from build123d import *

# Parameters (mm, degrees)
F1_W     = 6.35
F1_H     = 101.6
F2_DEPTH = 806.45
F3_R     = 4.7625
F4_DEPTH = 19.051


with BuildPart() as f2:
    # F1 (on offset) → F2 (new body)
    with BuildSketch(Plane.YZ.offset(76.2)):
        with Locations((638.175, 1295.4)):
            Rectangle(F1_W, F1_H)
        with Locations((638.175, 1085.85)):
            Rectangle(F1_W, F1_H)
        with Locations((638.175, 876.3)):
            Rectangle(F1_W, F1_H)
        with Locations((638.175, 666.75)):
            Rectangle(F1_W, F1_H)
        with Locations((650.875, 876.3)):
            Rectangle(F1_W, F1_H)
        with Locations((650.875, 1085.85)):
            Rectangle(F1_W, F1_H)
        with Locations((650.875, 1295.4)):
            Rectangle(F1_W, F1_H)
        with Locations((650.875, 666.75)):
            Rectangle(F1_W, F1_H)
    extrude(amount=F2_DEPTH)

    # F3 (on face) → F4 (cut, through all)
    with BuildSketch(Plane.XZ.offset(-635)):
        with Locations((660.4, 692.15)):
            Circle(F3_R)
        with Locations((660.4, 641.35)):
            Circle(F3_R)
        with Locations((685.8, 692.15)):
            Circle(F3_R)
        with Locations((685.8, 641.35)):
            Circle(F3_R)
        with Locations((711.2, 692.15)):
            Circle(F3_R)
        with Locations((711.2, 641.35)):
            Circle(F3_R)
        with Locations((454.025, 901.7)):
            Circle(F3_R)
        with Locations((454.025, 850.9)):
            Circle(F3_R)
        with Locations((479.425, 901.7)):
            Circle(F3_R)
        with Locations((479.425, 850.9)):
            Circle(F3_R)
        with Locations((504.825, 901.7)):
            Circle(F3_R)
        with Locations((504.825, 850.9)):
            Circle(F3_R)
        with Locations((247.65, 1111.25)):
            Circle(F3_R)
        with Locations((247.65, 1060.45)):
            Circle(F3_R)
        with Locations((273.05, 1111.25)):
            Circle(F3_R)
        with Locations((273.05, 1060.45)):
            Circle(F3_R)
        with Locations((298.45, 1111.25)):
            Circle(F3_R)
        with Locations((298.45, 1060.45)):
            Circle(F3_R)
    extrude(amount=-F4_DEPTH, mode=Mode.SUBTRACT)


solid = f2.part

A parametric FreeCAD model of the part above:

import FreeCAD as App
import Part
import Sketcher
from FreeCAD import Vector
Q = App.Units.Quantity

doc = App.newDocument("Part")
body = doc.addObject("PartDesign::Body", "Body")
body.AllowCompound = True

# Sketch on YZ plane
sketch1 = body.newObject("Sketcher::SketchObject", "Sketch")
sketch1.AttachmentSupport = (doc.getObject("YZ_Plane"), [""])
sketch1.MapMode = "FlatFace"
sketch1.AttachmentOffset = App.Placement(Vector(0, 0, 3 * 25.4), App.Rotation())
sketch1.addGeometry([
    Part.LineSegment(Vector(635, 1346.2, 0), Vector(635, 1244.6, 0)),  # 0
    Part.LineSegment(Vector(635, 1244.6, 0), Vector(641.35, 1244.6, 0)),  # 1
    Part.LineSegment(Vector(641.35, 1244.6, 0), Vector(641.35, 1346.2, 0)),  # 2
    Part.LineSegment(Vector(641.35, 1346.2, 0), Vector(635, 1346.2, 0)),  # 3
    Part.LineSegment(Vector(635, 1136.65, 0), Vector(635, 1035.05, 0)),  # 4
    Part.LineSegment(Vector(635, 1035.05, 0), Vector(641.35, 1035.05, 0)),  # 5
    Part.LineSegment(Vector(641.35, 1035.05, 0), Vector(641.35, 1136.65, 0)),  # 6
    Part.LineSegment(Vector(641.35, 1136.65, 0), Vector(635, 1136.65, 0)),  # 7
    Part.LineSegment(Vector(635, 927.1, 0), Vector(635, 825.5, 0)),  # 8
    Part.LineSegment(Vector(635, 825.5, 0), Vector(641.35, 825.5, 0)),  # 9
    Part.LineSegment(Vector(641.35, 825.5, 0), Vector(641.35, 927.1, 0)),  # 10
    Part.LineSegment(Vector(641.35, 927.1, 0), Vector(635, 927.1, 0)),  # 11
    Part.LineSegment(Vector(635, 717.55, 0), Vector(635, 615.95, 0)),  # 12
    Part.LineSegment(Vector(635, 615.95, 0), Vector(641.35, 615.95, 0)),  # 13
    Part.LineSegment(Vector(641.35, 615.95, 0), Vector(641.35, 717.55, 0)),  # 14
    Part.LineSegment(Vector(641.35, 717.55, 0), Vector(635, 717.55, 0)),  # 15
    Part.LineSegment(Vector(647.7, 927.1, 0), Vector(647.7, 825.5, 0)),  # 16
    Part.LineSegment(Vector(647.7, 825.5, 0), Vector(654.05, 825.5, 0)),  # 17
    Part.LineSegment(Vector(654.05, 825.5, 0), Vector(654.05, 927.1, 0)),  # 18
    Part.LineSegment(Vector(654.05, 927.1, 0), Vector(647.7, 927.1, 0)),  # 19
    Part.LineSegment(Vector(647.7, 1136.65, 0), Vector(647.7, 1035.05, 0)),  # 20
    Part.LineSegment(Vector(647.7, 1035.05, 0), Vector(654.05, 1035.05, 0)),  # 21
    Part.LineSegment(Vector(654.05, 1035.05, 0), Vector(654.05, 1136.65, 0)),  # 22
    Part.LineSegment(Vector(654.05, 1136.65, 0), Vector(647.7, 1136.65, 0)),  # 23
    Part.LineSegment(Vector(647.7, 1346.2, 0), Vector(647.7, 1244.6, 0)),  # 24
    Part.LineSegment(Vector(647.7, 1244.6, 0), Vector(654.05, 1244.6, 0)),  # 25
    Part.LineSegment(Vector(654.05, 1244.6, 0), Vector(654.05, 1346.2, 0)),  # 26
    Part.LineSegment(Vector(654.05, 1346.2, 0), Vector(647.7, 1346.2, 0)),  # 27
    Part.LineSegment(Vector(647.7, 717.55, 0), Vector(647.7, 615.95, 0)),  # 28
    Part.LineSegment(Vector(647.7, 615.95, 0), Vector(654.05, 615.95, 0)),  # 29
    Part.LineSegment(Vector(654.05, 615.95, 0), Vector(654.05, 717.55, 0)),  # 30
    Part.LineSegment(Vector(654.05, 717.55, 0), Vector(647.7, 717.55, 0)),  # 31
], False)
sketch1.addConstraint([
    Sketcher.Constraint("Coincident", 0, 2, 1, 1),
    Sketcher.Constraint("Coincident", 1, 2, 2, 1),
    Sketcher.Constraint("Coincident", 2, 2, 3, 1),
    Sketcher.Constraint("Coincident", 3, 2, 0, 1),
    Sketcher.Constraint("Coincident", 4, 2, 5, 1),
    Sketcher.Constraint("Coincident", 5, 2, 6, 1),
    Sketcher.Constraint("Coincident", 6, 2, 7, 1),
    Sketcher.Constraint("Coincident", 7, 2, 4, 1),
    Sketcher.Constraint("Coincident", 8, 2, 9, 1),
    Sketcher.Constraint("Coincident", 9, 2, 10, 1),
    Sketcher.Constraint("Coincident", 10, 2, 11, 1),
    Sketcher.Constraint("Coincident", 11, 2, 8, 1),
    Sketcher.Constraint("Coincident", 12, 2, 13, 1),
    Sketcher.Constraint("Coincident", 13, 2, 14, 1),
    Sketcher.Constraint("Coincident", 14, 2, 15, 1),
    Sketcher.Constraint("Coincident", 15, 2, 12, 1),
    Sketcher.Constraint("Coincident", 16, 2, 17, 1),
    Sketcher.Constraint("Coincident", 17, 2, 18, 1),
    Sketcher.Constraint("Coincident", 18, 2, 19, 1),
    Sketcher.Constraint("Coincident", 19, 2, 16, 1),
    Sketcher.Constraint("Coincident", 20, 2, 21, 1),
    Sketcher.Constraint("Coincident", 21, 2, 22, 1),
    Sketcher.Constraint("Coincident", 22, 2, 23, 1),
    Sketcher.Constraint("Coincident", 23, 2, 20, 1),
    Sketcher.Constraint("Coincident", 24, 2, 25, 1),
    Sketcher.Constraint("Coincident", 25, 2, 26, 1),
    Sketcher.Constraint("Coincident", 26, 2, 27, 1),
    Sketcher.Constraint("Coincident", 27, 2, 24, 1),
    Sketcher.Constraint("Coincident", 28, 2, 29, 1),
    Sketcher.Constraint("Coincident", 29, 2, 30, 1),
    Sketcher.Constraint("Coincident", 30, 2, 31, 1),
    Sketcher.Constraint("Coincident", 31, 2, 28, 1),
    Sketcher.Constraint("Vertical", 0),
    Sketcher.Constraint("Horizontal", 1),
    Sketcher.Constraint("Vertical", 2),
    Sketcher.Constraint("Horizontal", 3),
    Sketcher.Constraint("Vertical", 4),
    Sketcher.Constraint("Horizontal", 5),
    Sketcher.Constraint("Vertical", 6),
    Sketcher.Constraint("Horizontal", 7),
    Sketcher.Constraint("Vertical", 8),
    Sketcher.Constraint("Horizontal", 9),
    Sketcher.Constraint("Vertical", 10),
    Sketcher.Constraint("Horizontal", 11),
    Sketcher.Constraint("Vertical", 12),
    Sketcher.Constraint("Horizontal", 13),
    Sketcher.Constraint("Vertical", 14),
    Sketcher.Constraint("Horizontal", 15),
    Sketcher.Constraint("Vertical", 16),
    Sketcher.Constraint("Horizontal", 17),
    Sketcher.Constraint("Vertical", 18),
    Sketcher.Constraint("Horizontal", 19),
    Sketcher.Constraint("Vertical", 20),
    Sketcher.Constraint("Horizontal", 21),
    Sketcher.Constraint("Vertical", 22),
    Sketcher.Constraint("Horizontal", 23),
    Sketcher.Constraint("Vertical", 24),
    Sketcher.Constraint("Horizontal", 25),
    Sketcher.Constraint("Vertical", 26),
    Sketcher.Constraint("Horizontal", 27),
    Sketcher.Constraint("Vertical", 28),
    Sketcher.Constraint("Horizontal", 29),
    Sketcher.Constraint("Vertical", 30),
    Sketcher.Constraint("Horizontal", 31),
    Sketcher.Constraint("Horizontal", 9, 2, 16, 2),
    Sketcher.Constraint("Horizontal", 11, 2, 18, 2),
    Sketcher.Constraint("Horizontal", 5, 2, 20, 2),
    Sketcher.Constraint("Horizontal", 7, 2, 22, 2),
    Sketcher.Constraint("Horizontal", 1, 2, 24, 2),
    Sketcher.Constraint("Horizontal", 3, 2, 26, 2),
    Sketcher.Constraint("Horizontal", 13, 2, 28, 2),
    Sketcher.Constraint("Horizontal", 15, 2, 30, 2),
    Sketcher.Constraint("Vertical", 3, 2, 4, 2),
    Sketcher.Constraint("Vertical", 2, 2, 5, 2),
    Sketcher.Constraint("Vertical", 7, 2, 8, 2),
    Sketcher.Constraint("Vertical", 6, 2, 9, 2),
    Sketcher.Constraint("Vertical", 11, 2, 12, 2),
    Sketcher.Constraint("Vertical", 10, 2, 13, 2),
    Sketcher.Constraint("Vertical", 19, 2, 20, 2),
    Sketcher.Constraint("Vertical", 18, 2, 21, 2),
    Sketcher.Constraint("Vertical", 23, 2, 24, 2),
    Sketcher.Constraint("Vertical", 22, 2, 25, 2),
    Sketcher.Constraint("Vertical", 27, 2, 28, 2),
    Sketcher.Constraint("Vertical", 26, 2, 29, 2),
    Sketcher.Constraint("Equal", 15, 17),
    Sketcher.Constraint("Equal", 2, 4),
    Sketcher.Constraint("Equal", 6, 8),
    Sketcher.Constraint("Equal", 10, 12),
    Sketcher.Constraint("DistanceY", 0, 2, 0, 1, Q("4 in")),
    Sketcher.Constraint("DistanceX", -1, 1, 0, 2, Q("25 in")),
    Sketcher.Constraint("DistanceY", -1, 1, 0, 2, Q("49 in")),
    Sketcher.Constraint("DistanceX", 1, 1, 1, 2, Q("0.25 in")),
    Sketcher.Constraint("DistanceY", -1, 1, 8, 2, Q("32.5 in")),
    Sketcher.Constraint("DistanceX", -1, 1, 16, 2, Q("25.5 in")),
    Sketcher.Constraint("DistanceY", 12, 2, 4, 2, Q("16.5 in")),
    Sketcher.Constraint("DistanceY", -1, 1, 4, 2, Q("40.75 in")),
])
pad1 = body.newObject("PartDesign::Pad", "Pad")
pad1.Profile = sketch1
pad1.Length = Q("31.75 in")

# Sketch on XZ plane
sketch2 = body.newObject("Sketcher::SketchObject", "Sketch001")
sketch2.AttachmentSupport = (doc.getObject("XZ_Plane"), [""])
sketch2.MapMode = "FlatFace"
sketch2.AttachmentOffset = App.Placement(Vector(0, 0, -25 * 25.4), App.Rotation())
sketch2.addGeometry([
    Part.Circle(Vector(660.4, 692.15, 0), Vector(0, 0, 1), 4.7625),  # 0
    Part.Circle(Vector(660.4, 641.35, 0), Vector(0, 0, 1), 4.7625),  # 1
    Part.Circle(Vector(685.8, 692.15, 0), Vector(0, 0, 1), 4.7625),  # 2
    Part.Circle(Vector(685.8, 641.35, 0), Vector(0, 0, 1), 4.7625),  # 3
    Part.Circle(Vector(711.2, 692.15, 0), Vector(0, 0, 1), 4.7625),  # 4
    Part.Circle(Vector(711.2, 641.35, 0), Vector(0, 0, 1), 4.7625),  # 5
    Part.Circle(Vector(454.025, 901.7, 0), Vector(0, 0, 1), 4.7625),  # 6
    Part.Circle(Vector(454.025, 850.9, 0), Vector(0, 0, 1), 4.7625),  # 7
    Part.Circle(Vector(479.425, 901.7, 0), Vector(0, 0, 1), 4.7625),  # 8
    Part.Circle(Vector(479.425, 850.9, 0), Vector(0, 0, 1), 4.7625),  # 9
    Part.Circle(Vector(504.825, 901.7, 0), Vector(0, 0, 1), 4.7625),  # 10
    Part.Circle(Vector(504.825, 850.9, 0), Vector(0, 0, 1), 4.7625),  # 11
    Part.Circle(Vector(247.65, 1111.25, 0), Vector(0, 0, 1), 4.7625),  # 12
    Part.Circle(Vector(247.65, 1060.45, 0), Vector(0, 0, 1), 4.7625),  # 13
    Part.Circle(Vector(273.05, 1111.25, 0), Vector(0, 0, 1), 4.7625),  # 14
    Part.Circle(Vector(273.05, 1060.45, 0), Vector(0, 0, 1), 4.7625),  # 15
    Part.Circle(Vector(298.45, 1111.25, 0), Vector(0, 0, 1), 4.7625),  # 16
    Part.Circle(Vector(298.45, 1060.45, 0), Vector(0, 0, 1), 4.7625),  # 17
], False)
sketch2.addConstraint([
    Sketcher.Constraint("Equal", 0, 1),
    Sketcher.Constraint("Equal", 1, 2),
    Sketcher.Constraint("Equal", 2, 3),
    Sketcher.Constraint("Equal", 3, 4),
    Sketcher.Constraint("Equal", 4, 5),
    Sketcher.Constraint("Equal", 5, 6),
    Sketcher.Constraint("Equal", 6, 7),
    Sketcher.Constraint("Equal", 7, 8),
    Sketcher.Constraint("Equal", 8, 9),
    Sketcher.Constraint("Equal", 9, 10),
    Sketcher.Constraint("Equal", 10, 11),
    Sketcher.Constraint("Equal", 11, 12),
    Sketcher.Constraint("Equal", 12, 13),
    Sketcher.Constraint("Equal", 13, 14),
    Sketcher.Constraint("Equal", 14, 15),
    Sketcher.Constraint("Equal", 15, 16),
    Sketcher.Constraint("Equal", 16, 17),
    Sketcher.Constraint("Horizontal", 0, 3, 2, 3),
    Sketcher.Constraint("Horizontal", 1, 3, 3, 3),
    Sketcher.Constraint("Horizontal", 2, 3, 4, 3),
    Sketcher.Constraint("Horizontal", 3, 3, 5, 3),
    Sketcher.Constraint("Horizontal", 6, 3, 8, 3),
    Sketcher.Constraint("Horizontal", 7, 3, 9, 3),
    Sketcher.Constraint("Horizontal", 8, 3, 10, 3),
    Sketcher.Constraint("Horizontal", 9, 3, 11, 3),
    Sketcher.Constraint("Horizontal", 12, 3, 14, 3),
    Sketcher.Constraint("Horizontal", 13, 3, 15, 3),
    Sketcher.Constraint("Horizontal", 14, 3, 16, 3),
    Sketcher.Constraint("Horizontal", 15, 3, 17, 3),
    Sketcher.Constraint("Vertical", 0, 3, 1, 3),
    Sketcher.Constraint("Vertical", 2, 3, 3, 3),
    Sketcher.Constraint("Vertical", 4, 3, 5, 3),
    Sketcher.Constraint("Vertical", 6, 3, 7, 3),
    Sketcher.Constraint("Vertical", 8, 3, 9, 3),
    Sketcher.Constraint("Vertical", 10, 3, 11, 3),
    Sketcher.Constraint("Vertical", 12, 3, 13, 3),
    Sketcher.Constraint("Vertical", 14, 3, 15, 3),
    Sketcher.Constraint("Vertical", 16, 3, 17, 3),
    Sketcher.Constraint("Diameter", 0, Q("0.375 in")),
    Sketcher.Constraint("DistanceX", -1, 1, 0, 3, Q("26 in")),
    Sketcher.Constraint("DistanceX", -1, 1, 2, 3, Q("27 in")),
    Sketcher.Constraint("DistanceX", -1, 1, 4, 3, Q("28 in")),
    Sketcher.Constraint("DistanceY", 1, 3, 0, 3, Q("2 in")),
    Sketcher.Constraint("DistanceY", 7, 3, 6, 3, Q("2 in")),
    Sketcher.Constraint("DistanceX", 6, 3, 8, 3, Q("1 in")),
    Sketcher.Constraint("DistanceX", 8, 3, 10, 3, Q("1 in")),
    Sketcher.Constraint("DistanceY", 13, 3, 12, 3, Q("2 in")),
    Sketcher.Constraint("DistanceX", 12, 3, 14, 3, Q("1 in")),
    Sketcher.Constraint("DistanceX", 14, 3, 16, 3, Q("1 in")),
    Sketcher.Constraint("DistanceY", -1, 1, 6, 3, Q("35.5 in")),
    Sketcher.Constraint("DistanceY", -1, 1, 0, 3, Q("27.25 in")),
    Sketcher.Constraint("DistanceX", -1, 1, 12, 3, Q("9.75 in")),
    Sketcher.Constraint("DistanceY", -1, 1, 12, 3, Q("43.75 in")),
    Sketcher.Constraint("DistanceX", -1, 1, 6, 3, Q("17.875 in")),
])
pocket1 = body.newObject("PartDesign::Pocket", "Pocket")
pocket1.Profile = sketch2
pocket1.Type = "ThroughAll"

doc.recompute()
